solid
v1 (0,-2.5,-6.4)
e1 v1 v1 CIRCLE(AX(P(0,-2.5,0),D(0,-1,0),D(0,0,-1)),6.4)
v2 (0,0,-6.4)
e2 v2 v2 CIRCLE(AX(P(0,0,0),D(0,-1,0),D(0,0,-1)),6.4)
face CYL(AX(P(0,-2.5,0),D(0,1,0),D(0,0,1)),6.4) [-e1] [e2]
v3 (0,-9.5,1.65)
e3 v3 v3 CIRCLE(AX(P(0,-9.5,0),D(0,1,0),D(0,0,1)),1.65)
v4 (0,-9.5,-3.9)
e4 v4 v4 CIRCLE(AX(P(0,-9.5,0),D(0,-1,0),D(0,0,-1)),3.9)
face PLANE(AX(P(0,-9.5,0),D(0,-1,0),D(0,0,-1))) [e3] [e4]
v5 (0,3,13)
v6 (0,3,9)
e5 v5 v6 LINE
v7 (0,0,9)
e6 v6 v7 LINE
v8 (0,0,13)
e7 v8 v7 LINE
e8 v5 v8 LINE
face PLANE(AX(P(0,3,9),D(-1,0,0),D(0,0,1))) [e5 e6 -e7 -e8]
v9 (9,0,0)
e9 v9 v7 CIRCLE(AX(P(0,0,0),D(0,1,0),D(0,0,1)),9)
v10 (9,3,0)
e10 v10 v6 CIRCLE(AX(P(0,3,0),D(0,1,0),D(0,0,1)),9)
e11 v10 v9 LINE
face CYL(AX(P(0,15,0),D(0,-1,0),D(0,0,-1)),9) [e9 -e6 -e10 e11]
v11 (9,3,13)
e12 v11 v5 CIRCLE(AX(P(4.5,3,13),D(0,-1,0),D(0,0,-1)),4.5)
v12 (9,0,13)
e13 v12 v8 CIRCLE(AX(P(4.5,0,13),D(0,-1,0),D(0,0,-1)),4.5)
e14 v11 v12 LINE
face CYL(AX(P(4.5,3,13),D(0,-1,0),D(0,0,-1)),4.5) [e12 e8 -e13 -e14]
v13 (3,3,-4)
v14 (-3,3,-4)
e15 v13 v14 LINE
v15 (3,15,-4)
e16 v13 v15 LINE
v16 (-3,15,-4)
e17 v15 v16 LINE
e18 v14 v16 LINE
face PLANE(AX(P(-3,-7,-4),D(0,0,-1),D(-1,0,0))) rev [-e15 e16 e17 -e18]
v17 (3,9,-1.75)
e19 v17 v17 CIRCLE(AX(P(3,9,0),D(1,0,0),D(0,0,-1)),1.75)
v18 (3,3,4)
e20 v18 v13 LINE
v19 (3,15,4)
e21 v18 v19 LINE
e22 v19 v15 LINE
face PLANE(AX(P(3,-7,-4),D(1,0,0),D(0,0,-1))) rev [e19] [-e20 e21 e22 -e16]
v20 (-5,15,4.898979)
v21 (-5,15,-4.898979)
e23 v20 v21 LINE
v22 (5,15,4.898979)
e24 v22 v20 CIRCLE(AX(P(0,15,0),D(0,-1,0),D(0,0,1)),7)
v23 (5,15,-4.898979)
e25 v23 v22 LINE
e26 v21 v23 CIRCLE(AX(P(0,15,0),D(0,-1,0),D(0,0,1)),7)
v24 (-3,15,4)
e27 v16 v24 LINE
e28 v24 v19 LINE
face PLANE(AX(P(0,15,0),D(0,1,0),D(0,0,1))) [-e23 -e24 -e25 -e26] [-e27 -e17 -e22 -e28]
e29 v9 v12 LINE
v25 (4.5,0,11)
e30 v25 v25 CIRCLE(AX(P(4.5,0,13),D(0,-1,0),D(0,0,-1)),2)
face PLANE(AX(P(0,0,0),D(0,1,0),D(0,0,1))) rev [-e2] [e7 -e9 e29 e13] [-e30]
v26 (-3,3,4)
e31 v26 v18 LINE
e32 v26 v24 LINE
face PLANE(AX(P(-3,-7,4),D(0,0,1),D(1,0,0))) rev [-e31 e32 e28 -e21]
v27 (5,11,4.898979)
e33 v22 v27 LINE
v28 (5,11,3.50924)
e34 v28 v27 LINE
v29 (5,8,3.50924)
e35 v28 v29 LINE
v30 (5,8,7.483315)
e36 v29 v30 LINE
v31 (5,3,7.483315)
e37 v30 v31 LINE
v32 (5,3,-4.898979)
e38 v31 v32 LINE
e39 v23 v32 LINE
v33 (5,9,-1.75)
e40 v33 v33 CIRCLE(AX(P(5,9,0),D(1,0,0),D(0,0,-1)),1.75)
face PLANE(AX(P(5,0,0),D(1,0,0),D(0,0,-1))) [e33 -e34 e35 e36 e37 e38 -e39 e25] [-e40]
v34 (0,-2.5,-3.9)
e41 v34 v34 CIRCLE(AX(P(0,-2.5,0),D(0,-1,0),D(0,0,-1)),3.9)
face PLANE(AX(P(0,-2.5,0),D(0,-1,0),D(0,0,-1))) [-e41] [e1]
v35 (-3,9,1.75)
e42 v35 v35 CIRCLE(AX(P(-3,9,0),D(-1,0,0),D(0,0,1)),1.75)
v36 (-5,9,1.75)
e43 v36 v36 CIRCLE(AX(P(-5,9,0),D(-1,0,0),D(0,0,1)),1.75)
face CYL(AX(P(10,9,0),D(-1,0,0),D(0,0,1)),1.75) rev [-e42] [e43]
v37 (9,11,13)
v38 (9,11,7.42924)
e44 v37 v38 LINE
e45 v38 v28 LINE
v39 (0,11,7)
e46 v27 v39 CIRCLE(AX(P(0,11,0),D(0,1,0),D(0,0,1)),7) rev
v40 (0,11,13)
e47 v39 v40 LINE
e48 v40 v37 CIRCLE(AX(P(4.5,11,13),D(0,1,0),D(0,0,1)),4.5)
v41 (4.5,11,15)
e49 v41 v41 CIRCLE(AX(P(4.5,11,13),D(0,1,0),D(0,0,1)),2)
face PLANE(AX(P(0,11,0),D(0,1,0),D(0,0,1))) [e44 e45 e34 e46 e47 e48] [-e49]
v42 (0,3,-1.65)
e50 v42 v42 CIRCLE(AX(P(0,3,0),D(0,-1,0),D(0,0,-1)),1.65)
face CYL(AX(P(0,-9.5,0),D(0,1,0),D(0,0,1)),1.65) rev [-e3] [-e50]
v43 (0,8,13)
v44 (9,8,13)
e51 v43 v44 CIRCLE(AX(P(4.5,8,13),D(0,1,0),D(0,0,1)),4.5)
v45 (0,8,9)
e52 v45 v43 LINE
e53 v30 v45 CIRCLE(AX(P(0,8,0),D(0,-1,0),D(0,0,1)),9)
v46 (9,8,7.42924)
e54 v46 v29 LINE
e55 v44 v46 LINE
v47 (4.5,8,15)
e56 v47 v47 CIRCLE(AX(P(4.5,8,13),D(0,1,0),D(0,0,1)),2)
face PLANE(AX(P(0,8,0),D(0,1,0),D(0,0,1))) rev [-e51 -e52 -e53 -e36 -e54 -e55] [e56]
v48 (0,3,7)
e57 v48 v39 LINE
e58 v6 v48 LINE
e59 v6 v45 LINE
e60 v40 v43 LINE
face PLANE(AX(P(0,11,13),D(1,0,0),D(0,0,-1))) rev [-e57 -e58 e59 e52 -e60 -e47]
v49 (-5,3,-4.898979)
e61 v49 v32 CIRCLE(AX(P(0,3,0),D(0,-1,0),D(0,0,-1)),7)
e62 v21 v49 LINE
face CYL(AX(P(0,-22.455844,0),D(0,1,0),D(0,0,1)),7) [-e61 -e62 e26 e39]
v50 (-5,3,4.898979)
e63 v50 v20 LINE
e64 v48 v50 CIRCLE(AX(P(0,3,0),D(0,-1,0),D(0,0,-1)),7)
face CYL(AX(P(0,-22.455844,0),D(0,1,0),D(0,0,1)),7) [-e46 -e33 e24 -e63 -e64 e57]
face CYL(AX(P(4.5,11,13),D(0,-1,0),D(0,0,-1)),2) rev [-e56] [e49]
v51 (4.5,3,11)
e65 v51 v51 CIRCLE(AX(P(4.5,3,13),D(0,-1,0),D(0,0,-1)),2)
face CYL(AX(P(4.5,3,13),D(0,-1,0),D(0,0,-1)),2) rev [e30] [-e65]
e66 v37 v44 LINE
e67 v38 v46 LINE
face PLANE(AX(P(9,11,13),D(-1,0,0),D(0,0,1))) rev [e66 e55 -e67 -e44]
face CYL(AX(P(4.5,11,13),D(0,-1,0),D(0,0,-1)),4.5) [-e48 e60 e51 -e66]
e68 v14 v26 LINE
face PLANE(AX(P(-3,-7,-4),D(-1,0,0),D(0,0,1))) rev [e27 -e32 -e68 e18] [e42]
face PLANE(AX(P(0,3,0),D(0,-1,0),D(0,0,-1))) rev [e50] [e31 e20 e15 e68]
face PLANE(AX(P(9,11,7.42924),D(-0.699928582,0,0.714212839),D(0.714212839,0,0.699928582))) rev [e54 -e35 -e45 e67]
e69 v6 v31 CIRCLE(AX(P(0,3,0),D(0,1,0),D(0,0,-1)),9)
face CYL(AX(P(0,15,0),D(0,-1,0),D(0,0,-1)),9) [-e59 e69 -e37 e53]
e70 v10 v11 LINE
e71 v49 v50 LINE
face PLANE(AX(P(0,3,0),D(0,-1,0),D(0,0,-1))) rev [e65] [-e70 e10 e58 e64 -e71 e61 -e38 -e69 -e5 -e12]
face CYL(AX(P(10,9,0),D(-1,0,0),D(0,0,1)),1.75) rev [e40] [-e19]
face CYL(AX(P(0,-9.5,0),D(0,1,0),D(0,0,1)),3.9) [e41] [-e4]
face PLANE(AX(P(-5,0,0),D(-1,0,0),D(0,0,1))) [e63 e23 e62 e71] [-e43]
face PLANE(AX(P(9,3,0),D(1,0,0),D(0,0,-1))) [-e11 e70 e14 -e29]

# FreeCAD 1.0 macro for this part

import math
import FreeCAD as App
import Part
import Sketcher
Q = App.Units.Quantity


def add_polygon(sketch, points):
    """Adds a closed chain of lines whose ends are joined by coincident constraints."""
    first, n = sketch.GeometryCount, len(points)
    for a, b in zip(points, points[1:] + points[:1]):
        sketch.addGeometry(Part.LineSegment(App.Vector(*a, 0), App.Vector(*b, 0)), False)
    for i in range(n):
        sketch.addConstraint(Sketcher.Constraint("Coincident", first + i, 2, first + (i + 1) % n, 1))

doc = App.newDocument("Part")
params = doc.addObject("Spreadsheet::Sheet", "Params")
for row, (alias, value) in enumerate([
    ("sketch1_diameter", "18 mm"),
    ("pad1_length", "15 mm"),
    ("sketch2_diameter", "12.8 mm"),
    ("pad2_length", "2.5 mm"),
    ("sketch3_diameter", "7.8 mm"),
    ("pad3_length", "7 mm"),
    ("sketch4_diameter", "4 mm"),
    ("sketch4_radius", "9 mm"),
    ("sketch4_height", "4 mm"),
    ("pad4_length", "3 mm"),
    ("sketch5_width", "12 mm"),
    ("sketch5_height", "18 mm"),
    ("pocket1_length", "5 mm"),
    ("sketch6_diameter", "4 mm"),
    ("sketch6_radius", "9 mm"),
    ("sketch6_radius2", "4.5 mm"),
    ("sketch6_height", "4 mm"),
    ("pad5_length", "3 mm"),
    ("sketch7_radius", "7 mm"),
    ("sketch7_radius2", "9 mm"),
    ("pocket2_length", "12 mm"),
    ("sketch8_width", "6 mm"),
    ("sketch8_height", "8 mm"),
    ("pocket3_length", "12 mm"),
    ("sketch9_width", "12 mm"),
    ("sketch9_height", "15 mm"),
    ("pocket4_length", "10 mm"),
    ("sketch10_diameter", "18 mm"),
    ("sketch10_diameter2", "14 mm"),
    ("pocket5_length", "4 mm"),
    ("sketch11_diameter", "3.5 mm"),
    ("pocket6_length", "30 mm"),
    ("sketch12_diameter", "3.3 mm"),
], start=1):
    params.set(f"A{row}", alias)
    params.set(f"B{row}", "=" + value)
    params.setAlias(f"B{row}", alias)

body = doc.addObject("PartDesign::Body", "Body")

sketch1 = doc.addObject("Sketcher::SketchObject", "Sketch")
body.addObject(sketch1)
sketch1.AttachmentSupport = (doc.XZ_Plane, [""])
sketch1.MapMode = "FlatFace"
sketch1.addGeometry(Part.Circle(App.Vector(0, 0, 0), App.Vector(0, 0, 1), 9), False)
sketch1.addConstraint([
    Sketcher.Constraint("Coincident", 0, 3, -1, 1),
    Sketcher.Constraint("Diameter", 0, Q("18 mm")),
])
sketch1.setExpression("Constraints[1]", "Params.sketch1_diameter")
pad1 = doc.addObject("PartDesign::Pad", "Pad")
body.addObject(pad1)
pad1.Profile = sketch1
pad1.setExpression("Length", "Params.pad1_length")
pad1.Reversed = True

sketch2 = doc.addObject("Sketcher::SketchObject", "Sketch001")
body.addObject(sketch2)
sketch2.AttachmentSupport = (doc.XZ_Plane, [""])
sketch2.MapMode = "FlatFace"
sketch2.addGeometry(Part.Circle(App.Vector(0, 0, 0), App.Vector(0, 0, 1), 6), False)
sketch2.addConstraint([
    Sketcher.Constraint("Coincident", 0, 3, -1, 1),
    Sketcher.Constraint("Diameter", 0, Q("12.8 mm")),
])
sketch2.setExpression("Constraints[1]", "Params.sketch2_diameter")
pad2 = doc.addObject("PartDesign::Pad", "Pad001")
body.addObject(pad2)
pad2.Profile = sketch2
pad2.setExpression("Length", "Params.pad2_length")

sketch3 = doc.addObject("Sketcher::SketchObject", "Sketch002")
body.addObject(sketch3)
sketch3.AttachmentSupport = (doc.XZ_Plane, [""])
sketch3.MapMode = "FlatFace"
sketch3.AttachmentOffset = App.Placement(App.Vector(0, 0, 2.5), App.Rotation())
sketch3.addGeometry(Part.Circle(App.Vector(0, 0, 0), App.Vector(0, 0, 1), 3.9), False)
sketch3.addConstraint([
    Sketcher.Constraint("Coincident", 0, 3, -1, 1),
    Sketcher.Constraint("Diameter", 0, Q("7.8 mm")),
])
sketch3.setExpression("Constraints[1]", "Params.sketch3_diameter")
pad3 = doc.addObject("PartDesign::Pad", "Pad002")
body.addObject(pad3)
pad3.Profile = sketch3
pad3.setExpression("Length", "Params.pad3_length")

sketch4 = doc.addObject("Sketcher::SketchObject", "Sketch003")
body.addObject(sketch4)
sketch4.AttachmentSupport = (doc.XZ_Plane, [""])
sketch4.MapMode = "FlatFace"
sketch4.addGeometry([
    Part.LineSegment(App.Vector(0, 13, 0), App.Vector(0, 9, 0)),
    Part.ArcOfCircle(Part.Circle(App.Vector(0, 0, 0), App.Vector(0, 0, 1), 9), math.radians(0), math.radians(90)),
    Part.LineSegment(App.Vector(9, 0, 0), App.Vector(9, 13, 0)),
    Part.ArcOfCircle(Part.Circle(App.Vector(4.5, 13, 0), App.Vector(0, 0, 1), 4.5), math.radians(0), math.radians(180)),
    Part.Circle(App.Vector(4.5, 13, 0), App.Vector(0, 0, 1), 2),
], False)
sketch4.addConstraint([
    Sketcher.Constraint("Coincident", 0, 2, 1, 2),
    Sketcher.Constraint("Tangent", 1, 1, 2, 1),
    Sketcher.Constraint("Tangent", 2, 2, 3, 1),
    Sketcher.Constraint("Tangent", 3, 2, 0, 1),
    Sketcher.Constraint("Vertical", 0),
    Sketcher.Constraint("Vertical", 2),
    Sketcher.Constraint("Coincident", 1, 3, -1, 1),
    Sketcher.Constraint("Coincident", 4, 3, 3, 3),
    Sketcher.Constraint("PointOnObject", 0, 2, -2),
    Sketcher.Constraint("Diameter", 4, Q("4 mm")),
    Sketcher.Constraint("Radius", 1, Q("9 mm")),
    Sketcher.Constraint("DistanceY", 0, 2, 0, 1, Q("4 mm")),
])
sketch4.setExpression("Constraints[9]", "Params.sketch4_diameter")
sketch4.setExpression("Constraints[10]", "Params.sketch4_radius")
sketch4.setExpression("Constraints[11]", "Params.sketch4_height")
pad4 = doc.addObject("PartDesign::Pad", "Pad003")
body.addObject(pad4)
pad4.Profile = sketch4
pad4.setExpression("Length", "Params.pad4_length")
pad4.Reversed = True

sketch5 = doc.addObject("Sketcher::SketchObject", "Sketch004")
body.addObject(sketch5)
sketch5.AttachmentSupport = (doc.YZ_Plane, [""])
sketch5.MapMode = "FlatFace"
sketch5.AttachmentOffset = App.Placement(App.Vector(0, 0, 5), App.Rotation())
add_polygon(sketch5, [(15, 9), (3, 9), (3, -9), (15, -9)])
sketch5.addConstraint([
    Sketcher.Constraint("Horizontal", 0),
    Sketcher.Constraint("Vertical", 1),
    Sketcher.Constraint("Horizontal", 2),
    Sketcher.Constraint("Vertical", 3),
    Sketcher.Constraint("DistanceX", 0, 2, 0, 1, Q("12 mm")),
    Sketcher.Constraint("DistanceY", 1, 2, 1, 1, Q("18 mm")),
    Sketcher.Constraint("DistanceX", -1, 1, 0, 2, Q("3 mm")),
    Sketcher.Constraint("DistanceY", -1, 1, 0, 2, Q("9 mm")),
])
sketch5.setExpression("Constraints[8]", "Params.sketch5_width")
sketch5.setExpression("Constraints[9]", "Params.sketch5_height")
pocket1 = doc.addObject("PartDesign::Pocket", "Pocket")
body.addObject(pocket1)
pocket1.Profile = sketch5
pocket1.setExpression("Length", "Params.pocket1_length")
pocket1.Reversed = True

sketch6 = doc.addObject("Sketcher::SketchObject", "Sketch005")
body.addObject(sketch6)
sketch6.AttachmentSupport = (doc.XZ_Plane, [""])
sketch6.MapMode = "FlatFace"
sketch6.AttachmentOffset = App.Placement(App.Vector(0, 0, -8), App.Rotation())
sketch6.addGeometry([
    Part.LineSegment(App.Vector(0, 9, 0), App.Vector(0, 13, 0)),
    Part.ArcOfCircle(Part.Circle(App.Vector(4.5, 13, 0), App.Vector(0, 0, 1), 4.5), math.radians(0), math.radians(180)),
    Part.LineSegment(App.Vector(9, 13, 0), App.Vector(9, 7.4, 0)),
    Part.LineSegment(App.Vector(9, 7.4, 0), App.Vector(5, 3.5, 0)),
    Part.LineSegment(App.Vector(5, 3.5, 0), App.Vector(5, 7.5, 0)),
    Part.ArcOfCircle(Part.Circle(App.Vector(0, 0, 0), App.Vector(0, 0, 1), 9), math.radians(56), math.radians(90)),
    Part.Circle(App.Vector(4.5, 13, 0), App.Vector(0, 0, 1), 2),
], False)
sketch6.addConstraint([
    Sketcher.Constraint("Tangent", 0, 2, 1, 2),
    Sketcher.Constraint("Tangent", 1, 1, 2, 1),
    Sketcher.Constraint("Coincident", 2, 2, 3, 1),
    Sketcher.Constraint("Coincident", 3, 2, 4, 1),
    Sketcher.Constraint("Coincident", 4, 2, 5, 1),
    Sketcher.Constraint("Coincident", 5, 2, 0, 1),
    Sketcher.Constraint("Vertical", 0),
    Sketcher.Constraint("Vertical", 2),
    Sketcher.Constraint("Vertical", 4),
    Sketcher.Constraint("Coincident", 5, 3, -1, 1),
    Sketcher.Constraint("Coincident", 6, 3, 1, 3),
    Sketcher.Constraint("PointOnObject", 0, 2, -2),
    Sketcher.Constraint("Diameter", 6, Q("4 mm")),
    Sketcher.Constraint("Radius", 5, Q("9 mm")),
    Sketcher.Constraint("Radius", 1, Q("4.5 mm")),
    Sketcher.Constraint("DistanceY", 0, 1, 0, 2, Q("4 mm")),
    Sketcher.Constraint("DistanceX", -1, 1, 3, 2, Q("5 mm")),
    Sketcher.Constraint("DistanceY", 3, 2, 2, 2, Q("3.92 mm")),
    Sketcher.Constraint("DistanceY", 2, 2, 2, 1, Q("5.57076 mm")),
])
sketch6.setExpression("Constraints[12]", "Params.sketch6_diameter")
sketch6.setExpression("Constraints[13]", "Params.sketch6_radius")
sketch6.setExpression("Constraints[14]", "Params.sketch6_radius2")
sketch6.setExpression("Constraints[15]", "Params.sketch6_height")
pad5 = doc.addObject("PartDesign::Pad", "Pad004")
body.addObject(pad5)
pad5.Profile = sketch6
pad5.setExpression("Length", "Params.pad5_length")
pad5.Reversed = True

sketch7 = doc.addObject("Sketcher::SketchObject", "Sketch006")
body.addObject(sketch7)
sketch7.AttachmentSupport = (doc.XZ_Plane, [""])
sketch7.MapMode = "FlatFace"
sketch7.AttachmentOffset = App.Placement(App.Vector(0, 0, -15), App.Rotation())
sketch7.addGeometry([
    Part.LineSegment(App.Vector(0, 9, 0), App.Vector(0, 7, 0)),
    Part.ArcOfCircle(Part.Circle(App.Vector(0, 0, 0), App.Vector(0, 0, 1), 7), math.radians(90), math.radians(396)),
    Part.LineSegment(App.Vector(5.6, 4.1, 0), App.Vector(7.1, 5.6, 0)),
    Part.ArcOfCircle(Part.Circle(App.Vector(0, 0, 0), App.Vector(0, 0, 1), 9), math.radians(90), math.radians(398)),
], False)
sketch7.addConstraint([
    Sketcher.Constraint("Coincident", 0, 2, 1, 1),
    Sketcher.Constraint("Coincident", 1, 2, 2, 1),
    Sketcher.Constraint("Coincident", 2, 2, 3, 2),
    Sketcher.Constraint("Coincident", 3, 1, 0, 1),
    Sketcher.Constraint("Vertical", 0),
    Sketcher.Constraint("Coincident", 1, 3, -1, 1),
    Sketcher.Constraint("Coincident", 3, 3, -1, 1),
    Sketcher.Constraint("PointOnObject", 0, 2, -2),
    Sketcher.Constraint("Radius", 1, Q("7 mm")),
    Sketcher.Constraint("Radius", 3, Q("9 mm")),
    Sketcher.Constraint("Distance", 2, Q("2.015851 mm")),
    Sketcher.Constraint("DistanceX", -1, 1, 1, 2, Q("5.644138 mm")),
])
sketch7.setExpression("Constraints[8]", "Params.sketch7_radius")
sketch7.setExpression("Constraints[9]", "Params.sketch7_radius2")
pocket2 = doc.addObject("PartDesign::Pocket", "Pocket001")
body.addObject(pocket2)
pocket2.Profile = sketch7
pocket2.setExpression("Length", "Params.pocket2_length")
pocket2.Reversed = True

sketch8 = doc.addObject("Sketcher::SketchObject", "Sketch007")
body.addObject(sketch8)
sketch8.AttachmentSupport = (doc.XZ_Plane, [""])
sketch8.MapMode = "FlatFace"
sketch8.AttachmentOffset = App.Placement(App.Vector(0, 0, -15), App.Rotation())
add_polygon(sketch8, [(-3, -4), (-3, 4), (3, 4), (3, -4)])
sketch8.addConstraint([
    Sketcher.Constraint("Vertical", 0),
    Sketcher.Constraint("Horizontal", 1),
    Sketcher.Constraint("Vertical", 2),
    Sketcher.Constraint("Horizontal", 3),
    Sketcher.Constraint("Symmetric", 0, 2, 2, 2, -1, 1),
    Sketcher.Constraint("DistanceX", 1, 1, 1, 2, Q("6 mm")),
    Sketcher.Constraint("DistanceY", 0, 1, 0, 2, Q("8 mm")),
])
sketch8.setExpression("Constraints[9]", "Params.sketch8_width")
sketch8.setExpression("Constraints[10]", "Params.sketch8_height")
pocket3 = doc.addObject("PartDesign::Pocket", "Pocket002")
body.addObject(pocket3)
pocket3.Profile = sketch8
pocket3.setExpression("Length", "Params.pocket3_length")
pocket3.Reversed = True

sketch9 = doc.addObject("Sketcher::SketchObject", "Sketch008")
body.addObject(sketch9)
sketch9.AttachmentSupport = (doc.YZ_Plane, [""])
sketch9.MapMode = "FlatFace"
sketch9.AttachmentOffset = App.Placement(App.Vector(0, 0, -5), App.Rotation())
add_polygon(sketch9, [(15, -8), (3, -8), (3, 8), (15, 8)])
sketch9.addConstraint([
    Sketcher.Constraint("Horizontal", 0),
    Sketcher.Constraint("Vertical", 1),
    Sketcher.Constraint("Horizontal", 2),
    Sketcher.Constraint("Vertical", 3),
    Sketcher.Constraint("DistanceX", 0, 2, 0, 1, Q("12 mm")),
    Sketcher.Constraint("DistanceY", 1, 1, 1, 2, Q("15 mm")),
    Sketcher.Constraint("DistanceX", -1, 1, 0, 2, Q("3 mm")),
    Sketcher.Constraint("DistanceY", 0, 2, -1, 1, Q("7.5 mm")),
])
sketch9.setExpression("Constraints[8]", "Params.sketch9_width")
sketch9.setExpression("Constraints[9]", "Params.sketch9_height")
pocket4 = doc.addObject("PartDesign::Pocket", "Pocket003")
body.addObject(pocket4)
pocket4.Profile = sketch9
pocket4.setExpression("Length", "Params.pocket4_length")

sketch10 = doc.addObject("Sketcher::SketchObject", "Sketch009")
body.addObject(sketch10)
sketch10.AttachmentSupport = (doc.XZ_Plane, [""])
sketch10.MapMode = "FlatFace"
sketch10.AttachmentOffset = App.Placement(App.Vector(0, 0, -15), App.Rotation())
sketch10.addGeometry([
    Part.Circle(App.Vector(0, 0, 0), App.Vector(0, 0, 1), 9),
    Part.Circle(App.Vector(0, 0, 0), App.Vector(0, 0, 1), 7),
], False)
sketch10.addConstraint([
    Sketcher.Constraint("Coincident", 0, 3, -1, 1),
    Sketcher.Constraint("Coincident", 1, 3, -1, 1),
    Sketcher.Constraint("Diameter", 0, Q("18 mm")),
    Sketcher.Constraint("Diameter", 1, Q("14 mm")),
])
sketch10.setExpression("Constraints[2]", "Params.sketch10_diameter")
sketch10.setExpression("Constraints[3]", "Params.sketch10_diameter2")
pocket5 = doc.addObject("PartDesign::Pocket", "Pocket004")
body.addObject(pocket5)
pocket5.Profile = sketch10
pocket5.setExpression("Length", "Params.pocket5_length")
pocket5.Reversed = True

sketch11 = doc.addObject("Sketcher::SketchObject", "Sketch010")
body.addObject(sketch11)
sketch11.AttachmentSupport = (doc.YZ_Plane, [""])
sketch11.MapMode = "FlatFace"
sketch11.AttachmentOffset = App.Placement(App.Vector(0, 0, -5), App.Rotation())
sketch11.addGeometry(Part.Circle(App.Vector(9, 0, 0), App.Vector(0, 0, 1), 1.8), False)
sketch11.addConstraint([
    Sketcher.Constraint("PointOnObject", 0, 3, -1),
    Sketcher.Constraint("Diameter", 0, Q("3.5 mm")),
    Sketcher.Constraint("DistanceX", -1, 1, 0, 3, Q("9 mm")),
])
sketch11.setExpression("Constraints[1]", "Params.sketch11_diameter")
pocket6 = doc.addObject("PartDesign::Pocket", "Pocket005")
body.addObject(pocket6)
pocket6.Profile = sketch11
pocket6.setExpression("Length", "Params.pocket6_length")
pocket6.Midplane = True

sketch12 = doc.addObject("Sketcher::SketchObject", "Sketch011")
body.addObject(sketch12)
sketch12.AttachmentSupport = (doc.XZ_Plane, [""])
sketch12.MapMode = "FlatFace"
sketch12.addGeometry(Part.Circle(App.Vector(0, 0, 0), App.Vector(0, 0, 1), 1.6), False)
sketch12.addConstraint([
    Sketcher.Constraint("Coincident", 0, 3, -1, 1),
    Sketcher.Constraint("Diameter", 0, Q("3.3 mm")),
])
sketch12.setExpression("Constraints[1]", "Params.sketch12_diameter")
pocket7 = doc.addObject("PartDesign::Pocket", "Pocket006")
body.addObject(pocket7)
pocket7.Profile = sketch12
pocket7.Type = "ThroughAll"
pocket7.Midplane = True

doc.recompute()
